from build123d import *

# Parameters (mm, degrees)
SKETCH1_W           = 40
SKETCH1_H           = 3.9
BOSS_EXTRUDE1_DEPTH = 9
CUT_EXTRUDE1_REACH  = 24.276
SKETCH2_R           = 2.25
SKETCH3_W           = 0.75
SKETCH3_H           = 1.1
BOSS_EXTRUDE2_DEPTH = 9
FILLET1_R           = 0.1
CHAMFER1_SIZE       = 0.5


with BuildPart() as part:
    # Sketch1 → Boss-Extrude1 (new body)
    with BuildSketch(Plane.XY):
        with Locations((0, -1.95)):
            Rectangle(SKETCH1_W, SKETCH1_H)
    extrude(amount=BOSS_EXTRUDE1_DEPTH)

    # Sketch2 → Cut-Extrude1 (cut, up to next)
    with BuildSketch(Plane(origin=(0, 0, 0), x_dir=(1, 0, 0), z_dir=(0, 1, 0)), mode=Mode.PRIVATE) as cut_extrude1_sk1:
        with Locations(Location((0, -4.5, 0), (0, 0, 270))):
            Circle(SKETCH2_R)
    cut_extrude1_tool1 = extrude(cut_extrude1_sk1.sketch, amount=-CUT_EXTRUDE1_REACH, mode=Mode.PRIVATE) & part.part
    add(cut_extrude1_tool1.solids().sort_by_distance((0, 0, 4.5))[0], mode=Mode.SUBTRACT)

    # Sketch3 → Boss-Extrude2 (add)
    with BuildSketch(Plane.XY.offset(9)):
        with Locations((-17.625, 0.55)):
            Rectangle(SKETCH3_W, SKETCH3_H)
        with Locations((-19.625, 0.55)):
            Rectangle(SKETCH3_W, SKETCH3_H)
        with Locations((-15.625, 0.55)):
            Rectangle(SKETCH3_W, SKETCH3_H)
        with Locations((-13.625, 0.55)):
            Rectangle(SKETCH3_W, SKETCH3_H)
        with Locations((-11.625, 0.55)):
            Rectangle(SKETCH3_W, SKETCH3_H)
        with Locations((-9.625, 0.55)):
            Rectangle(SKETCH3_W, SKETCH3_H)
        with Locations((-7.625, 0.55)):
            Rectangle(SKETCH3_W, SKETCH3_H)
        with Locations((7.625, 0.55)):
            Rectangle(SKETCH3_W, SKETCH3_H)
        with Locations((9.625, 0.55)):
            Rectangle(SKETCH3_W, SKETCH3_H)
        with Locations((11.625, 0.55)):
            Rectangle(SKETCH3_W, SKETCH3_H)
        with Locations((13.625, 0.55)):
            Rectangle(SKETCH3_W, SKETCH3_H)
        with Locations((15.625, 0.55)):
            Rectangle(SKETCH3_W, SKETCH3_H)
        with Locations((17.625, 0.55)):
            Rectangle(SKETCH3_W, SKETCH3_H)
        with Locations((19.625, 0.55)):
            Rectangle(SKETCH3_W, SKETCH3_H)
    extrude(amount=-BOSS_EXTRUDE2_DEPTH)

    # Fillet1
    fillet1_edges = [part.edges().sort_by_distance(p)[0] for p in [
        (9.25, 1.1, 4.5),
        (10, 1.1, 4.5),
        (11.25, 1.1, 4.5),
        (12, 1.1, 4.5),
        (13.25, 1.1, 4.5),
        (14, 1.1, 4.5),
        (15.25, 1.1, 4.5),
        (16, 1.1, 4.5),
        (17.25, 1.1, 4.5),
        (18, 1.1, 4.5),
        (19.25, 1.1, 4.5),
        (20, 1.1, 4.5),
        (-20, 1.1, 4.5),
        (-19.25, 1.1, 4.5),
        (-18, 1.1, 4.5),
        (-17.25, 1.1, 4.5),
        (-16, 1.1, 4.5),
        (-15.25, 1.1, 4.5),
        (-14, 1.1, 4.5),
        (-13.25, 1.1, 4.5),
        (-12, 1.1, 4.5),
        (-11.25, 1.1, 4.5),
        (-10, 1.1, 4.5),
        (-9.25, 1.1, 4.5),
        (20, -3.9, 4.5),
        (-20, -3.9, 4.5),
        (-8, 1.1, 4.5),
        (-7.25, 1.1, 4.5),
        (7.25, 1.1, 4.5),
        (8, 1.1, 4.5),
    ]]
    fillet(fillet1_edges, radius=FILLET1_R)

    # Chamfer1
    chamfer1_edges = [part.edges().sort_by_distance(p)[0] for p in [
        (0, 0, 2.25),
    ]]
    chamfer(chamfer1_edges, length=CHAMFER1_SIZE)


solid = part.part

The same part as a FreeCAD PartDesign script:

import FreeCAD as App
import Part
import Sketcher
from FreeCAD import Vector


def edges_at(feature, points):
    """Names of the edges that pass closest to the given points."""
    edges = feature.Shape.Edges
    near = lambda p: min(range(len(edges)), key=lambda i: edges[i].distToShape(Part.Vertex(*p))[0])
    return sorted({f"Edge{near(p) + 1}" for p in points})

doc = App.newDocument("Part")
params = doc.addObject("Spreadsheet::Sheet", "Params")
for row, (alias, value) in enumerate([
    ("sketch1_width", "40 mm"),
    ("sketch1_height", "3.9 mm"),
    ("pad1_length", "9 mm"),
    ("sketch2_diameter", "4.5 mm"),
    ("sketch3_height", "1.1 mm"),
    ("sketch3_width", "0.75 mm"),
    ("pad2_length", "9 mm"),
    ("fillet_radius", "0.1 mm"),
    ("chamfer_size", "0.5 mm"),
], start=1):
    params.set(f"A{row}", alias)
    params.set(f"B{row}", "=" + value)
    params.setAlias(f"B{row}", alias)

body = doc.addObject("PartDesign::Body", "Body")

# Sketch on XY plane
sketch1 = body.newObject("Sketcher::SketchObject", "Sketch")
sketch1.AttachmentSupport = (doc.getObject("XY_Plane"), [""])
sketch1.MapMode = "FlatFace"
sketch1.addGeometry([
    Part.LineSegment(Vector(-20, 0, 0), Vector(-20, -3.9, 0)),
    Part.LineSegment(Vector(-20, -3.9, 0), Vector(20, -3.9, 0)),
    Part.LineSegment(Vector(20, -3.9, 0), Vector(20, 0, 0)),
    Part.LineSegment(Vector(20, 0, 0), Vector(-20, 0, 0)),
], False)
sketch1.addConstraint([
    Sketcher.Constraint("Coincident", 0, 2, 1, 1),
    Sketcher.Constraint("Coincident", 1, 2, 2, 1),
    Sketcher.Constraint("Coincident", 2, 2, 3, 1),
    Sketcher.Constraint("Coincident", 3, 2, 0, 1),
    Sketcher.Constraint("Vertical", 0),
    Sketcher.Constraint("Horizontal", 1),
    Sketcher.Constraint("Vertical", 2),
    Sketcher.Constraint("Horizontal", 3),
    Sketcher.Constraint("Symmetric", 2, 2, 3, 2, -1, 1),
    Sketcher.Constraint("DistanceX", 1, 1, 1, 2, 40.0),
    Sketcher.Constraint("DistanceY", 0, 2, 0, 1, 3.9),
])
sketch1.setExpression("Constraints[9]", "Params.sketch1_width")
sketch1.setExpression("Constraints[10]", "Params.sketch1_height")
pad1 = body.newObject("PartDesign::Pad", "Pad")
pad1.Profile = sketch1
pad1.setExpression("Length", "Params.pad1_length")

# Sketch on XZ plane
sketch2 = body.newObject("Sketcher::SketchObject", "Sketch001")
sketch2.AttachmentSupport = (doc.getObject("XZ_Plane"), [""])
sketch2.MapMode = "FlatFace"
sketch2.addGeometry(Part.Circle(Vector(0, 4.5, 0), Vector(0, 0, 1), 2.2), False)
sketch2.addConstraint([
    Sketcher.Constraint("PointOnObject", 0, 3, -2),
    Sketcher.Constraint("Diameter", 0, 4.5),
    Sketcher.Constraint("DistanceY", -1, 1, 0, 3, 4.5),
])
sketch2.setExpression("Constraints[1]", "Params.sketch2_diameter")
pocket1 = body.newObject("PartDesign::Pocket", "Pocket")
pocket1.Profile = sketch2
pocket1.Type = "UpToFirst"
pocket1.Reversed = True

# Sketch on XY plane
sketch3 = body.newObject("Sketcher::SketchObject", "Sketch002")
sketch3.AttachmentSupport = (doc.getObject("XY_Plane"), [""])
sketch3.MapMode = "FlatFace"
sketch3.AttachmentOffset = App.Placement(Vector(0, 0, 9), App.Rotation())
sketch3.addGeometry([
    Part.LineSegment(Vector(-18, 1.1, 0), Vector(-18, 0, 0)),  # 0
    Part.LineSegment(Vector(-18, 0, 0), Vector(-17.2, 0, 0)),  # 1
    Part.LineSegment(Vector(-17.2, 0, 0), Vector(-17.2, 1.1, 0)),  # 2
    Part.LineSegment(Vector(-17.2, 1.1, 0), Vector(-18, 1.1, 0)),  # 3
    Part.LineSegment(Vector(-20, 1.1, 0), Vector(-20, 0, 0)),  # 4
    Part.LineSegment(Vector(-20, 0, 0), Vector(-19.2, 0, 0)),  # 5
    Part.LineSegment(Vector(-19.2, 0, 0), Vector(-19.2, 1.1, 0)),  # 6
    Part.LineSegment(Vector(-19.2, 1.1, 0), Vector(-20, 1.1, 0)),  # 7
    Part.LineSegment(Vector(-16, 1.1, 0), Vector(-16, 0, 0)),  # 8
    Part.LineSegment(Vector(-16, 0, 0), Vector(-15.2, 0, 0)),  # 9
    Part.LineSegment(Vector(-15.2, 0, 0), Vector(-15.2, 1.1, 0)),  # 10
    Part.LineSegment(Vector(-15.2, 1.1, 0), Vector(-16, 1.1, 0)),  # 11
    Part.LineSegment(Vector(-14, 1.1, 0), Vector(-14, 0, 0)),  # 12
    Part.LineSegment(Vector(-14, 0, 0), Vector(-13.2, 0, 0)),  # 13
    Part.LineSegment(Vector(-13.2, 0, 0), Vector(-13.2, 1.1, 0)),  # 14
    Part.LineSegment(Vector(-13.2, 1.1, 0), Vector(-14, 1.1, 0)),  # 15
    Part.LineSegment(Vector(-12, 1.1, 0), Vector(-12, 0, 0)),  # 16
    Part.LineSegment(Vector(-12, 0, 0), Vector(-11.2, 0, 0)),  # 17
    Part.LineSegment(Vector(-11.2, 0, 0), Vector(-11.2, 1.1, 0)),  # 18
    Part.LineSegment(Vector(-11.2, 1.1, 0), Vector(-12, 1.1, 0)),  # 19
    Part.LineSegment(Vector(-10, 1.1, 0), Vector(-10, 0, 0)),  # 20
    Part.LineSegment(Vector(-10, 0, 0), Vector(-9.2, 0, 0)),  # 21
    Part.LineSegment(Vector(-9.2, 0, 0), Vector(-9.2, 1.1, 0)),  # 22
    Part.LineSegment(Vector(-9.2, 1.1, 0), Vector(-10, 1.1, 0)),  # 23
    Part.LineSegment(Vector(-8, 1.1, 0), Vector(-8, 0, 0)),  # 24
    Part.LineSegment(Vector(-8, 0, 0), Vector(-7.2, 0, 0)),  # 25
    Part.LineSegment(Vector(-7.2, 0, 0), Vector(-7.2, 1.1, 0)),  # 26
    Part.LineSegment(Vector(-7.2, 1.1, 0), Vector(-8, 1.1, 0)),  # 27
    Part.LineSegment(Vector(7.2, 1.1, 0), Vector(7.2, 0, 0)),  # 28
    Part.LineSegment(Vector(7.2, 0, 0), Vector(8, 0, 0)),  # 29
    Part.LineSegment(Vector(8, 0, 0), Vector(8, 1.1, 0)),  # 30
    Part.LineSegment(Vector(8, 1.1, 0), Vector(7.2, 1.1, 0)),  # 31
    Part.LineSegment(Vector(9.2, 1.1, 0), Vector(9.2, 0, 0)),  # 32
    Part.LineSegment(Vector(9.2, 0, 0), Vector(10, 0, 0)),  # 33
    Part.LineSegment(Vector(10, 0, 0), Vector(10, 1.1, 0)),  # 34
    Part.LineSegment(Vector(10, 1.1, 0), Vector(9.2, 1.1, 0)),  # 35
    Part.LineSegment(Vector(11.2, 1.1, 0), Vector(11.2, 0, 0)),  # 36
    Part.LineSegment(Vector(11.2, 0, 0), Vector(12, 0, 0)),  # 37
    Part.LineSegment(Vector(12, 0, 0), Vector(12, 1.1, 0)),  # 38
    Part.LineSegment(Vector(12, 1.1, 0), Vector(11.2, 1.1, 0)),  # 39
    Part.LineSegment(Vector(13.2, 1.1, 0), Vector(13.2, 0, 0)),  # 40
    Part.LineSegment(Vector(13.2, 0, 0), Vector(14, 0, 0)),  # 41
    Part.LineSegment(Vector(14, 0, 0), Vector(14, 1.1, 0)),  # 42
    Part.LineSegment(Vector(14, 1.1, 0), Vector(13.2, 1.1, 0)),  # 43
    Part.LineSegment(Vector(15.2, 1.1, 0), Vector(15.2, 0, 0)),  # 44
    Part.LineSegment(Vector(15.2, 0, 0), Vector(16, 0, 0)),  # 45
    Part.LineSegment(Vector(16, 0, 0), Vector(16, 1.1, 0)),  # 46
    Part.LineSegment(Vector(16, 1.1, 0), Vector(15.2, 1.1, 0)),  # 47
    Part.LineSegment(Vector(17.2, 1.1, 0), Vector(17.2, 0, 0)),  # 48
    Part.LineSegment(Vector(17.2, 0, 0), Vector(18, 0, 0)),  # 49
    Part.LineSegment(Vector(18, 0, 0), Vector(18, 1.1, 0)),  # 50
    Part.LineSegment(Vector(18, 1.1, 0), Vector(17.2, 1.1, 0)),  # 51
    Part.LineSegment(Vector(19.2, 1.1, 0), Vector(19.2, 0, 0)),  # 52
    Part.LineSegment(Vector(19.2, 0, 0), Vector(20, 0, 0)),  # 53
    Part.LineSegment(Vector(20, 0, 0), Vector(20, 1.1, 0)),  # 54
    Part.LineSegment(Vector(20, 1.1, 0), Vector(19.2, 1.1, 0)),  # 55
], False)
sketch3.addConstraint([
    Sketcher.Constraint("Coincident", 0, 2, 1, 1),
    Sketcher.Constraint("Coincident", 1, 2, 2, 1),
    Sketcher.Constraint("Coincident", 2, 2, 3, 1),
    Sketcher.Constraint("Coincident", 3, 2, 0, 1),
    Sketcher.Constraint("Coincident", 4, 2, 5, 1),
    Sketcher.Constraint("Coincident", 5, 2, 6, 1),
    Sketcher.Constraint("Coincident", 6, 2, 7, 1),
    Sketcher.Constraint("Coincident", 7, 2, 4, 1),
    Sketcher.Constraint("Coincident", 8, 2, 9, 1),
    Sketcher.Constraint("Coincident", 9, 2, 10, 1),
    Sketcher.Constraint("Coincident", 10, 2, 11, 1),
    Sketcher.Constraint("Coincident", 11, 2, 8, 1),
    Sketcher.Constraint("Coincident", 12, 2, 13, 1),
    Sketcher.Constraint("Coincident", 13, 2, 14, 1),
    Sketcher.Constraint("Coincident", 14, 2, 15, 1),
    Sketcher.Constraint("Coincident", 15, 2, 12, 1),
    Sketcher.Constraint("Coincident", 16, 2, 17, 1),
    Sketcher.Constraint("Coincident", 17, 2, 18, 1),
    Sketcher.Constraint("Coincident", 18, 2, 19, 1),
    Sketcher.Constraint("Coincident", 19, 2, 16, 1),
    Sketcher.Constraint("Coincident", 20, 2, 21, 1),
    Sketcher.Constraint("Coincident", 21, 2, 22, 1),
    Sketcher.Constraint("Coincident", 22, 2, 23, 1),
    Sketcher.Constraint("Coincident", 23, 2, 20, 1),
    Sketcher.Constraint("Coincident", 24, 2, 25, 1),
    Sketcher.Constraint("Coincident", 25, 2, 26, 1),
    Sketcher.Constraint("Coincident", 26, 2, 27, 1),
    Sketcher.Constraint("Coincident", 27, 2, 24, 1),
    Sketcher.Constraint("Coincident", 28, 2, 29, 1),
    Sketcher.Constraint("Coincident", 29, 2, 30, 1),
    Sketcher.Constraint("Coincident", 30, 2, 31, 1),
    Sketcher.Constraint("Coincident", 31, 2, 28, 1),
    Sketcher.Constraint("Coincident", 32, 2, 33, 1),
    Sketcher.Constraint("Coincident", 33, 2, 34, 1),
    Sketcher.Constraint("Coincident", 34, 2, 35, 1),
    Sketcher.Constraint("Coincident", 35, 2, 32, 1),
    Sketcher.Constraint("Coincident", 36, 2, 37, 1),
    Sketcher.Constraint("Coincident", 37, 2, 38, 1),
    Sketcher.Constraint("Coincident", 38, 2, 39, 1),
    Sketcher.Constraint("Coincident", 39, 2, 36, 1),
    Sketcher.Constraint("Coincident", 40, 2, 41, 1),
    Sketcher.Constraint("Coincident", 41, 2, 42, 1),
    Sketcher.Constraint("Coincident", 42, 2, 43, 1),
    Sketcher.Constraint("Coincident", 43, 2, 40, 1),
    Sketcher.Constraint("Coincident", 44, 2, 45, 1),
    Sketcher.Constraint("Coincident", 45, 2, 46, 1),
    Sketcher.Constraint("Coincident", 46, 2, 47, 1),
    Sketcher.Constraint("Coincident", 47, 2, 44, 1),
    Sketcher.Constraint("Coincident", 48, 2, 49, 1),
    Sketcher.Constraint("Coincident", 49, 2, 50, 1),
    Sketcher.Constraint("Coincident", 50, 2, 51, 1),
    Sketcher.Constraint("Coincident", 51, 2, 48, 1),
    Sketcher.Constraint("Coincident", 52, 2, 53, 1),
    Sketcher.Constraint("Coincident", 53, 2, 54, 1),
    Sketcher.Constraint("Coincident", 54, 2, 55, 1),
    Sketcher.Constraint("Coincident", 55, 2, 52, 1),
    Sketcher.Constraint("Vertical", 0),
    Sketcher.Constraint("Horizontal", 1),
    Sketcher.Constraint("Vertical", 2),
    Sketcher.Constraint("Horizontal", 3),
    Sketcher.Constraint("Vertical", 4),
    Sketcher.Constraint("Horizontal", 5),
    Sketcher.Constraint("Vertical", 6),
    Sketcher.Constraint("Horizontal", 7),
    Sketcher.Constraint("Vertical", 8),
    Sketcher.Constraint("Horizontal", 9),
    Sketcher.Constraint("Vertical", 10),
    Sketcher.Constraint("Horizontal", 11),
    Sketcher.Constraint("Vertical", 12),
    Sketcher.Constraint("Horizontal", 13),
    Sketcher.Constraint("Vertical", 14),
    Sketcher.Constraint("Horizontal", 15),
    Sketcher.Constraint("Vertical", 16),
    Sketcher.Constraint("Horizontal", 17),
    Sketcher.Constraint("Vertical", 18),
    Sketcher.Constraint("Horizontal", 19),
    Sketcher.Constraint("Vertical", 20),
    Sketcher.Constraint("Horizontal", 21),
    Sketcher.Constraint("Vertical", 22),
    Sketcher.Constraint("Horizontal", 23),
    Sketcher.Constraint("Vertical", 24),
    Sketcher.Constraint("Horizontal", 25),
    Sketcher.Constraint("Vertical", 26),
    Sketcher.Constraint("Horizontal", 27),
    Sketcher.Constraint("Vertical", 28),
    Sketcher.Constraint("Horizontal", 29),
    Sketcher.Constraint("Vertical", 30),
    Sketcher.Constraint("Horizontal", 31),
    Sketcher.Constraint("Vertical", 32),
    Sketcher.Constraint("Horizontal", 33),
    Sketcher.Constraint("Vertical", 34),
    Sketcher.Constraint("Horizontal", 35),
    Sketcher.Constraint("Vertical", 36),
    Sketcher.Constraint("Horizontal", 37),
    Sketcher.Constraint("Vertical", 38),
    Sketcher.Constraint("Horizontal", 39),
    Sketcher.Constraint("Vertical", 40),
    Sketcher.Constraint("Horizontal", 41),
    Sketcher.Constraint("Vertical", 42),
    Sketcher.Constraint("Horizontal", 43),
    Sketcher.Constraint("Vertical", 44),
    Sketcher.Constraint("Horizontal", 45),
    Sketcher.Constraint("Vertical", 46),
    Sketcher.Constraint("Horizontal", 47),
    Sketcher.Constraint("Vertical", 48),
    Sketcher.Constraint("Horizontal", 49),
    Sketcher.Constraint("Vertical", 50),
    Sketcher.Constraint("Horizontal", 51),
    Sketcher.Constraint("Vertical", 52),
    Sketcher.Constraint("Horizontal", 53),
    Sketcher.Constraint("Vertical", 54),
    Sketcher.Constraint("Horizontal", 55),
    Sketcher.Constraint("Symmetric", 25, 2, 28, 2, -1, 1),
    Sketcher.Constraint("Symmetric", 21, 2, 32, 2, -1, 1),
    Sketcher.Constraint("Symmetric", 17, 2, 36, 2, -1, 1),
    Sketcher.Constraint("Symmetric", 13, 2, 40, 2, -1, 1),
    Sketcher.Constraint("Symmetric", 9, 2, 44, 2, -1, 1),
    Sketcher.Constraint("Symmetric", 1, 2, 48, 2, -1, 1),
    Sketcher.Constraint("Symmetric", 5, 2, 52, 2, -1, 1),
    Sketcher.Constraint("Symmetric", 24, 2, 29, 2, -2),
    Sketcher.Constraint("Symmetric", 20, 2, 33, 2, -2),
    Sketcher.Constraint("Symmetric", 16, 2, 37, 2, -2),
    Sketcher.Constraint("Symmetric", 12, 2, 41, 2, -2),
    Sketcher.Constraint("Symmetric", 8, 2, 45, 2, -2),
    Sketcher.Constraint("Symmetric", 0, 2, 49, 2, -2),
    Sketcher.Constraint("Symmetric", 4, 2, 53, 2, -2),
    Sketcher.Constraint("Horizontal", 3, 2, 6, 2),
    Sketcher.Constraint("Horizontal", 7, 2, 10, 2),
    Sketcher.Constraint("Horizontal", 11, 2, 14, 2),
    Sketcher.Constraint("Horizontal", 15, 2, 18, 2),
    Sketcher.Constraint("Horizontal", 19, 2, 22, 2),
    Sketcher.Constraint("Horizontal", 23, 2, 26, 2),
    Sketcher.Constraint("Horizontal", 27, 2, 30, 2),
    Sketcher.Constraint("Horizontal", 31, 2, 34, 2),
    Sketcher.Constraint("Horizontal", 35, 2, 38, 2),
    Sketcher.Constraint("Horizontal", 39, 2, 42, 2),
    Sketcher.Constraint("Horizontal", 43, 2, 46, 2),
    Sketcher.Constraint("Horizontal", 47, 2, 50, 2),
    Sketcher.Constraint("Horizontal", 51, 2, 54, 2),
    Sketcher.Constraint("Equal", 3, 5),
    Sketcher.Constraint("Equal", 7, 9),
    Sketcher.Constraint("Equal", 11, 13),
    Sketcher.Constraint("Equal", 15, 17),
    Sketcher.Constraint("Equal", 19, 21),
    Sketcher.Constraint("Equal", 23, 25),
    Sketcher.Constraint("DistanceY", 0, 2, 0, 1, 1.1),
    Sketcher.Constraint("DistanceX", 0, 2, -1, 1, 18.0),
    Sketcher.Constraint("DistanceX", 4, 2, -1, 1, 20.0),
    Sketcher.Constraint("DistanceX", 8, 2, -1, 1, 16.0),
    Sketcher.Constraint("DistanceX", 12, 2, -1, 1, 14.0),
    Sketcher.Constraint("DistanceX", 16, 2, -1, 1, 12.0),
    Sketcher.Constraint("DistanceX", 20, 2, -1, 1, 10.0),
    Sketcher.Constraint("DistanceX", 24, 2, -1, 1, 8.0),
    Sketcher.Constraint("DistanceX", 1, 1, 1, 2, 0.75),
])
sketch3.setExpression("Constraints[145]", "Params.sketch3_height")
sketch3.setExpression("Constraints[153]", "Params.sketch3_width")
pad2 = body.newObject("PartDesign::Pad", "Pad001")
pad2.Profile = sketch3
pad2.setExpression("Length", "Params.pad2_length")
pad2.Reversed = True
doc.recompute()

fillet = body.newObject("PartDesign::Fillet", "Fillet")
fillet.Base = (pad2, edges_at(pad2, [
    (9.25, 1.1, 4.5),
    (10, 1.1, 4.5),
    (11.25, 1.1, 4.5),
    (12, 1.1, 4.5),
    (13.25, 1.1, 4.5),
    (14, 1.1, 4.5),
    (15.25, 1.1, 4.5),
    (16, 1.1, 4.5),
    (17.25, 1.1, 4.5),
    (18, 1.1, 4.5),
    (19.25, 1.1, 4.5),
    (20, 1.1, 4.5),
    (-20, 1.1, 4.5),
    (-19.25, 1.1, 4.5),
    (-18, 1.1, 4.5),
    (-17.25, 1.1, 4.5),
    (-16, 1.1, 4.5),
    (-15.25, 1.1, 4.5),
    (-14, 1.1, 4.5),
    (-13.25, 1.1, 4.5),
    (-12, 1.1, 4.5),
    (-11.25, 1.1, 4.5),
    (-10, 1.1, 4.5),
    (-9.25, 1.1, 4.5),
    (20, -3.9, 4.5),
    (-20, -3.9, 4.5),
    (-8, 1.1, 4.5),
    (-7.25, 1.1, 4.5),
    (7.25, 1.1, 4.5),
    (8, 1.1, 4.5),
]))
fillet.setExpression("Radius", "Params.fillet_radius")
doc.recompute()

chamfer = body.newObject("PartDesign::Chamfer", "Chamfer")
chamfer.Base = (fillet, edges_at(fillet, [(0, 0, 2.25)]))
chamfer.setExpression("Size", "Params.chamfer_size")

doc.recompute()
